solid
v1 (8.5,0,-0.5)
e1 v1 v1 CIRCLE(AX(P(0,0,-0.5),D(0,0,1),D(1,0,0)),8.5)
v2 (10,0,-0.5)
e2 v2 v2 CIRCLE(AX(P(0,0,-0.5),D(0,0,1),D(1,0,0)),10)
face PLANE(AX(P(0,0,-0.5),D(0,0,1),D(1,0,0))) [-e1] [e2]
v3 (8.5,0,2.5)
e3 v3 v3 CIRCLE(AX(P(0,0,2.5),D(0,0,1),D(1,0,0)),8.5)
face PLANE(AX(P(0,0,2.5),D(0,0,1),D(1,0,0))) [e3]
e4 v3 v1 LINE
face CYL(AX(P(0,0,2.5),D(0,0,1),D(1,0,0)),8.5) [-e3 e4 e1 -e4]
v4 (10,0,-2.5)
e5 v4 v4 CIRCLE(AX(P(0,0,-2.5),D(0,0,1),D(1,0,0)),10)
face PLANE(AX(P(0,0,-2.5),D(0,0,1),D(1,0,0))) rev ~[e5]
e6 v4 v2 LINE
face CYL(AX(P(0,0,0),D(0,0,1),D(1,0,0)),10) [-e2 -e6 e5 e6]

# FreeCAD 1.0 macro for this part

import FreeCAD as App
import Part
import Sketcher
Q = App.Units.Quantity

doc = App.newDocument("Part")
params = doc.addObject("Spreadsheet::Sheet", "Params")
for row, (alias, value) in enumerate([
    ("sketch1_diameter", "20 mm"),
    ("pad1_length", "5 mm"),
    ("sketch2_diameter", "20 mm"),
    ("sketch2_diameter2", "17 mm"),
    ("pocket1_length", "3 mm"),
], start=1):
    params.set(f"A{row}", alias)
    params.set(f"B{row}", "=" + value)
    params.setAlias(f"B{row}", alias)

body = doc.addObject("PartDesign::Body", "Body")

# Sketch on XY plane
sketch1 = body.newObject("Sketcher::SketchObject", "Sketch")
sketch1.AttachmentSupport = (doc.getObject("XY_Plane"), [""])
sketch1.MapMode = "FlatFace"
sketch1.addGeometry(Part.Circle(App.Vector(0, 0, 0), App.Vector(0, 0, 1), 10), False)
sketch1.addConstraint([
    Sketcher.Constraint("Coincident", 0, 3, -1, 1),
    Sketcher.Constraint("Diameter", 0, Q("20 mm")),
])
sketch1.setExpression("Constraints[1]", "Params.sketch1_diameter")
pad1 = body.newObject("PartDesign::Pad", "Pad")
pad1.Profile = sketch1
pad1.setExpression("Length", "Params.pad1_length")
pad1.Midplane = True

# Sketch on XY plane
sketch2 = body.newObject("Sketcher::SketchObject", "Sketch001")
sketch2.AttachmentSupport = (doc.getObject("XY_Plane"), [""])
sketch2.MapMode = "FlatFace"
sketch2.AttachmentOffset = App.Placement(App.Vector(0, 0, 2.5), App.Rotation())
sketch2.addGeometry([
    Part.Circle(App.Vector(0, 0, 0), App.Vector(0, 0, 1), 10),
    Part.Circle(App.Vector(0, 0, 0), App.Vector(0, 0, 1), 8),
], False)
sketch2.addConstraint([
    Sketcher.Constraint("Coincident", 0, 3, -1, 1),
    Sketcher.Constraint("Coincident", 1, 3, -1, 1),
    Sketcher.Constraint("Diameter", 0, Q("20 mm")),
    Sketcher.Constraint("Diameter", 1, Q("17 mm")),
])
sketch2.setExpression("Constraints[2]", "Params.sketch2_diameter")
sketch2.setExpression("Constraints[3]", "Params.sketch2_diameter2")
pocket1 = body.newObject("PartDesign::Pocket", "Pocket")
pocket1.Profile = sketch2
pocket1.setExpression("Length", "Params.pocket1_length")

doc.recompute()
